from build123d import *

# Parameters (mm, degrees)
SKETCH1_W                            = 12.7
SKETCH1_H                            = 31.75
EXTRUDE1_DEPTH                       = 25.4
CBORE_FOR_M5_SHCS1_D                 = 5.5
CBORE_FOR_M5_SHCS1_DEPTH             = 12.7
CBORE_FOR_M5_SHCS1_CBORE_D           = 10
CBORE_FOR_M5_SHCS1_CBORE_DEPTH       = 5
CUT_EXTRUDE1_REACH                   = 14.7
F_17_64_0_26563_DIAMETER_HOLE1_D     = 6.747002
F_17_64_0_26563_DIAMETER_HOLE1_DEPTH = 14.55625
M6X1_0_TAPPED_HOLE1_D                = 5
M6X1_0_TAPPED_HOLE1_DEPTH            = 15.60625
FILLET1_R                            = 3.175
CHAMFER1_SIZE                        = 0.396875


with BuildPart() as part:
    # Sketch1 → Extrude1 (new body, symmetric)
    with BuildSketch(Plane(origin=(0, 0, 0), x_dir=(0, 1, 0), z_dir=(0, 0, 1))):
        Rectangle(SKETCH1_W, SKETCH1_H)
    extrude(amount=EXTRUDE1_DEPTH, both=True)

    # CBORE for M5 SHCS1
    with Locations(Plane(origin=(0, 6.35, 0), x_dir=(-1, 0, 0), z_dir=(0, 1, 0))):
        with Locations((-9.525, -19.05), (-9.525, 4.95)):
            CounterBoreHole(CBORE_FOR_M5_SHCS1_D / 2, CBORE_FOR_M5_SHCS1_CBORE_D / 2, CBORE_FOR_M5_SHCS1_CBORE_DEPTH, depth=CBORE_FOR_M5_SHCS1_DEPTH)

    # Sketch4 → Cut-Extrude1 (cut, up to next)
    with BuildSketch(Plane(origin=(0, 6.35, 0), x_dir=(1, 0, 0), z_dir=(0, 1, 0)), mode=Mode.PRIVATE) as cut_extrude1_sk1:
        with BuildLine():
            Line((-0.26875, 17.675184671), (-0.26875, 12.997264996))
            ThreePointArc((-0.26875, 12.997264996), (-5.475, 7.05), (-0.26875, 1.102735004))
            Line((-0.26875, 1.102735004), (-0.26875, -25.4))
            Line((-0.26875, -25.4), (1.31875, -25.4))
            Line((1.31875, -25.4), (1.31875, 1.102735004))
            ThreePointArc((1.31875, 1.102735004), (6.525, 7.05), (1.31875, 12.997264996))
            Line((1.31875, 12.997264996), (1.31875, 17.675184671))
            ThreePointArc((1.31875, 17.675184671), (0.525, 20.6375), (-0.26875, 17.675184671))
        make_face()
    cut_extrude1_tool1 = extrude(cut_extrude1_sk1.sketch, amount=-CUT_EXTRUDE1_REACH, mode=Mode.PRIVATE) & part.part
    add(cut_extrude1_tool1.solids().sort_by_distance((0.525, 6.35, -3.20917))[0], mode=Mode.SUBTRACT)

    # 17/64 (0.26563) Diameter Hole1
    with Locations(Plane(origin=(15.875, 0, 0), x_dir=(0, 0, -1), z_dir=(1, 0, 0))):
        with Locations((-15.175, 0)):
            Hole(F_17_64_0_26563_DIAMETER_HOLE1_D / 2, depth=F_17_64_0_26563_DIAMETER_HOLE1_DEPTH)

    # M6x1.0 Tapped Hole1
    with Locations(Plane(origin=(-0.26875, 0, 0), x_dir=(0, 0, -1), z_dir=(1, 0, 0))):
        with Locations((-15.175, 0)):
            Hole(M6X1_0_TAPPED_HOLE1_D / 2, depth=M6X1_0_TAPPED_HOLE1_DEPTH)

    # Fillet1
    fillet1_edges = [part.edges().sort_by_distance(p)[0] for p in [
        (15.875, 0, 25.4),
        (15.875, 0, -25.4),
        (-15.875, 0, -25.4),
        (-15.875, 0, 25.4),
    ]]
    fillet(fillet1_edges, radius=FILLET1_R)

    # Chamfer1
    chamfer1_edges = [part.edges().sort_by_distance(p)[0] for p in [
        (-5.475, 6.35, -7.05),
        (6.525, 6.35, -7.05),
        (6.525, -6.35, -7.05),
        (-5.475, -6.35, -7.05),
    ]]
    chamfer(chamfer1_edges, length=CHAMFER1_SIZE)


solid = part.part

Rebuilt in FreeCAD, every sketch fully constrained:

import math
import FreeCAD as App
import Part
import Sketcher
from FreeCAD import Vector
Q = App.Units.Quantity


def edges_at(feature, points):
    """Names of the edges that pass closest to the given points."""
    edges = feature.Shape.Edges
    near = lambda p: min(range(len(edges)), key=lambda i: edges[i].distToShape(Part.Vertex(*p))[0])
    return sorted({f"Edge{near(p) + 1}" for p in points})

doc = App.newDocument("Part")
body = doc.addObject("PartDesign::Body", "Body")

sketch1 = body.newObject("Sketcher::SketchObject", "Sketch")
sketch1.AttachmentSupport = (doc.getObject("XY_Plane"), [""])
sketch1.MapMode = "FlatFace"
sketch1.addGeometry([
    Part.LineSegment(Vector(-16, -6, 0), Vector(16, -6, 0)),
    Part.LineSegment(Vector(16, -6, 0), Vector(16, 6, 0)),
    Part.LineSegment(Vector(16, 6, 0), Vector(-16, 6, 0)),
    Part.LineSegment(Vector(-16, 6, 0), Vector(-16, -6, 0)),
], False)
sketch1.addConstraint([
    Sketcher.Constraint("Coincident", 0, 2, 1, 1),
    Sketcher.Constraint("Coincident", 1, 2, 2, 1),
    Sketcher.Constraint("Coincident", 2, 2, 3, 1),
    Sketcher.Constraint("Coincident", 3, 2, 0, 1),
    Sketcher.Constraint("Horizontal", 0),
    Sketcher.Constraint("Vertical", 1),
    Sketcher.Constraint("Horizontal", 2),
    Sketcher.Constraint("Vertical", 3),
    Sketcher.Constraint("Symmetric", 0, 2, 2, 2, -1, 1),
    Sketcher.Constraint("DistanceY", 1, 1, 1, 2, Q("0.5 in")),
    Sketcher.Constraint("DistanceX", 0, 1, 0, 2, Q("1.25 in")),
])
pad1 = body.newObject("PartDesign::Pad", "Pad")
pad1.Profile = sketch1
pad1.Length = Q("2 in")
pad1.Midplane = True

sketch2 = body.newObject("Sketcher::SketchObject", "Sketch001")
sketch2.AttachmentSupport = (doc.getObject("XZ_Plane"), [""])
sketch2.MapMode = "FlatFace"
sketch2.AttachmentOffset = App.Placement(Vector(0, 0, -0.25 * 25.4), App.Rotation())
sketch2.addGeometry([
    Part.Circle(Vector(9.5, -19.1, 0), Vector(0, 0, 1), 2.8),
    Part.Circle(Vector(9.5, 5, 0), Vector(0, 0, 1), 2.8),
], False)
sketch2.addConstraint([
    Sketcher.Constraint("Equal", 0, 1),
    Sketcher.Constraint("Vertical", 0, 3, 1, 3),
    Sketcher.Constraint("Diameter", 0, Q("5.5 mm")),
    Sketcher.Constraint("DistanceY", 0, 3, -1, 1, Q("0.75 in")),
    Sketcher.Constraint("DistanceX", -1, 1, 0, 3, Q("0.375 in")),
    Sketcher.Constraint("DistanceY", -1, 1, 1, 3, Q("4.95 mm")),
])
doc.recompute()
hole = body.newObject("PartDesign::Hole", "Hole")
hole.Profile = sketch2
hole.ThreadType = "None"
hole.Diameter = 5.5
hole.DepthType = "Dimension"
hole.Depth = Q("0.5 in")
hole.DrillPoint = "Flat"
hole.HoleCutType = "Counterbore"
hole.HoleCutDiameter = 10
hole.HoleCutDepth = 5
hole.Reversed = True

sketch3 = body.newObject("Sketcher::SketchObject", "Sketch002")
sketch3.AttachmentSupport = (doc.getObject("XZ_Plane"), [""])
sketch3.MapMode = "FlatFace"
sketch3.AttachmentOffset = App.Placement(Vector(0, 0, -0.25 * 25.4), App.Rotation())
sketch3.addGeometry([
    Part.LineSegment(Vector(-0.3, -17.7, 0), Vector(-0.3, -13, 0)),
    Part.ArcOfCircle(Part.Circle(Vector(0.5, -7, 0), Vector(0, 0, 1), 6), math.radians(98), math.radians(262)),
    Part.LineSegment(Vector(-0.3, -1.1, 0), Vector(-0.3, 25.4, 0)),
    Part.LineSegment(Vector(-0.3, 25.4, 0), Vector(1.3, 25.4, 0)),
    Part.LineSegment(Vector(1.3, 25.4, 0), Vector(1.3, -1.1, 0)),
    Part.ArcOfCircle(Part.Circle(Vector(0.5, -7, 0), Vector(0, 0, 1), 6), math.radians(-82), math.radians(82)),
    Part.LineSegment(Vector(1.3, -13, 0), Vector(1.3, -17.7, 0)),
    Part.ArcOfCircle(Part.Circle(Vector(0.5, -19.1, 0), Vector(0, 0, 1), 1.6), math.radians(120), math.radians(420)),
], False)
sketch3.addConstraint([
    Sketcher.Constraint("Coincident", 0, 2, 1, 2),
    Sketcher.Constraint("Coincident", 1, 1, 2, 1),
    Sketcher.Constraint("Coincident", 2, 2, 3, 1),
    Sketcher.Constraint("Coincident", 3, 2, 4, 1),
    Sketcher.Constraint("Coincident", 4, 2, 5, 2),
    Sketcher.Constraint("Coincident", 5, 1, 6, 1),
    Sketcher.Constraint("Coincident", 6, 2, 7, 2),
    Sketcher.Constraint("Coincident", 7, 1, 0, 1),
    Sketcher.Constraint("Vertical", 0),
    Sketcher.Constraint("Vertical", 2),
    Sketcher.Constraint("Horizontal", 3),
    Sketcher.Constraint("Vertical", 4),
    Sketcher.Constraint("Vertical", 6),
    Sketcher.Constraint("Coincident", 5, 3, 1, 3),
    Sketcher.Constraint("Equal", 1, 5),
    Sketcher.Constraint("Horizontal", 1, 1, 4, 2),
    Sketcher.Constraint("Horizontal", 0, 2, 5, 1),
    Sketcher.Constraint("Horizontal", 6, 2, 7, 1),
    Sketcher.Constraint("Vertical", 0, 2, 1, 1),
    Sketcher.Constraint("DistanceY", -1, 1, 2, 2, Q("1 in")),
    Sketcher.Constraint("Radius", 7, Q("0.0625 in")),
    Sketcher.Constraint("DistanceX", 3, 1, 3, 2, Q("0.0625 in")),
    Sketcher.Constraint("DistanceY", 7, 3, -1, 1, Q("0.75 in")),
    Sketcher.Constraint("Radius", 1, Q("6 mm")),
    Sketcher.Constraint("DistanceY", 0, 1, 0, 2, Q("4.67792 mm")),
    Sketcher.Constraint("DistanceX", -1, 1, 1, 3, Q("0.525 mm")),
])
pocket1 = body.newObject("PartDesign::Pocket", "Pocket")
pocket1.Profile = sketch3
pocket1.Type = "UpToFirst"
pocket1.Reversed = True

sketch4 = body.newObject("Sketcher::SketchObject", "Sketch003")
sketch4.AttachmentSupport = (doc.getObject("YZ_Plane"), [""])
sketch4.MapMode = "FlatFace"
sketch4.AttachmentOffset = App.Placement(Vector(0, 0, 0.625 * 25.4), App.Rotation())
sketch4.addGeometry(Part.Circle(Vector(0, 15.2, 0), Vector(0, 0, 1), 3.4), False)
sketch4.addConstraint([
    Sketcher.Constraint("PointOnObject", 0, 3, -2),
    Sketcher.Constraint("Diameter", 0, Q("6.747002 mm")),
    Sketcher.Constraint("DistanceY", -1, 1, 0, 3, Q("15.175 mm")),
])
doc.recompute()
hole2 = body.newObject("PartDesign::Hole", "Hole001")
hole2.Profile = sketch4
hole2.ThreadType = "None"
hole2.Diameter = 6.747002
hole2.DepthType = "Dimension"
hole2.Depth = 14.55625
hole2.DrillPoint = "Flat"

sketch5 = body.newObject("Sketcher::SketchObject", "Sketch004")
sketch5.AttachmentSupport = (doc.getObject("YZ_Plane"), [""])
sketch5.MapMode = "FlatFace"
sketch5.AttachmentOffset = App.Placement(Vector(0, 0, -0.26875), App.Rotation())
sketch5.addGeometry(Part.Circle(Vector(0, 15.2, 0), Vector(0, 0, 1), 2.5), False)
sketch5.addConstraint([
    Sketcher.Constraint("PointOnObject", 0, 3, -2),
    Sketcher.Constraint("Diameter", 0, Q("5 mm")),
    Sketcher.Constraint("DistanceY", -1, 1, 0, 3, Q("15.175 mm")),
])
doc.recompute()
hole3 = body.newObject("PartDesign::Hole", "Hole002")
hole3.Profile = sketch5
hole3.ThreadType = "None"
hole3.Diameter = 5
hole3.DepthType = "Dimension"
hole3.Depth = 15.60625
hole3.DrillPoint = "Flat"
doc.recompute()

fillet = body.newObject("PartDesign::Fillet", "Fillet")
fillet.Base = (hole3, edges_at(hole3, [
    (15.875, 0, 25.4),
    (15.875, 0, -25.4),
    (-15.875, 0, -25.4),
    (-15.875, 0, 25.4),
]))
fillet.Radius = Q("0.125 in")
doc.recompute()

chamfer = body.newObject("PartDesign::Chamfer", "Chamfer")
chamfer.Base = (fillet, edges_at(fillet, [
    (-5.475, 6.35, -7.05),
    (6.525, 6.35, -7.05),
    (6.525, -6.35, -7.05),
    (-5.475, -6.35, -7.05),
]))
chamfer.Size = Q("0.015625 in")

doc.recompute()
